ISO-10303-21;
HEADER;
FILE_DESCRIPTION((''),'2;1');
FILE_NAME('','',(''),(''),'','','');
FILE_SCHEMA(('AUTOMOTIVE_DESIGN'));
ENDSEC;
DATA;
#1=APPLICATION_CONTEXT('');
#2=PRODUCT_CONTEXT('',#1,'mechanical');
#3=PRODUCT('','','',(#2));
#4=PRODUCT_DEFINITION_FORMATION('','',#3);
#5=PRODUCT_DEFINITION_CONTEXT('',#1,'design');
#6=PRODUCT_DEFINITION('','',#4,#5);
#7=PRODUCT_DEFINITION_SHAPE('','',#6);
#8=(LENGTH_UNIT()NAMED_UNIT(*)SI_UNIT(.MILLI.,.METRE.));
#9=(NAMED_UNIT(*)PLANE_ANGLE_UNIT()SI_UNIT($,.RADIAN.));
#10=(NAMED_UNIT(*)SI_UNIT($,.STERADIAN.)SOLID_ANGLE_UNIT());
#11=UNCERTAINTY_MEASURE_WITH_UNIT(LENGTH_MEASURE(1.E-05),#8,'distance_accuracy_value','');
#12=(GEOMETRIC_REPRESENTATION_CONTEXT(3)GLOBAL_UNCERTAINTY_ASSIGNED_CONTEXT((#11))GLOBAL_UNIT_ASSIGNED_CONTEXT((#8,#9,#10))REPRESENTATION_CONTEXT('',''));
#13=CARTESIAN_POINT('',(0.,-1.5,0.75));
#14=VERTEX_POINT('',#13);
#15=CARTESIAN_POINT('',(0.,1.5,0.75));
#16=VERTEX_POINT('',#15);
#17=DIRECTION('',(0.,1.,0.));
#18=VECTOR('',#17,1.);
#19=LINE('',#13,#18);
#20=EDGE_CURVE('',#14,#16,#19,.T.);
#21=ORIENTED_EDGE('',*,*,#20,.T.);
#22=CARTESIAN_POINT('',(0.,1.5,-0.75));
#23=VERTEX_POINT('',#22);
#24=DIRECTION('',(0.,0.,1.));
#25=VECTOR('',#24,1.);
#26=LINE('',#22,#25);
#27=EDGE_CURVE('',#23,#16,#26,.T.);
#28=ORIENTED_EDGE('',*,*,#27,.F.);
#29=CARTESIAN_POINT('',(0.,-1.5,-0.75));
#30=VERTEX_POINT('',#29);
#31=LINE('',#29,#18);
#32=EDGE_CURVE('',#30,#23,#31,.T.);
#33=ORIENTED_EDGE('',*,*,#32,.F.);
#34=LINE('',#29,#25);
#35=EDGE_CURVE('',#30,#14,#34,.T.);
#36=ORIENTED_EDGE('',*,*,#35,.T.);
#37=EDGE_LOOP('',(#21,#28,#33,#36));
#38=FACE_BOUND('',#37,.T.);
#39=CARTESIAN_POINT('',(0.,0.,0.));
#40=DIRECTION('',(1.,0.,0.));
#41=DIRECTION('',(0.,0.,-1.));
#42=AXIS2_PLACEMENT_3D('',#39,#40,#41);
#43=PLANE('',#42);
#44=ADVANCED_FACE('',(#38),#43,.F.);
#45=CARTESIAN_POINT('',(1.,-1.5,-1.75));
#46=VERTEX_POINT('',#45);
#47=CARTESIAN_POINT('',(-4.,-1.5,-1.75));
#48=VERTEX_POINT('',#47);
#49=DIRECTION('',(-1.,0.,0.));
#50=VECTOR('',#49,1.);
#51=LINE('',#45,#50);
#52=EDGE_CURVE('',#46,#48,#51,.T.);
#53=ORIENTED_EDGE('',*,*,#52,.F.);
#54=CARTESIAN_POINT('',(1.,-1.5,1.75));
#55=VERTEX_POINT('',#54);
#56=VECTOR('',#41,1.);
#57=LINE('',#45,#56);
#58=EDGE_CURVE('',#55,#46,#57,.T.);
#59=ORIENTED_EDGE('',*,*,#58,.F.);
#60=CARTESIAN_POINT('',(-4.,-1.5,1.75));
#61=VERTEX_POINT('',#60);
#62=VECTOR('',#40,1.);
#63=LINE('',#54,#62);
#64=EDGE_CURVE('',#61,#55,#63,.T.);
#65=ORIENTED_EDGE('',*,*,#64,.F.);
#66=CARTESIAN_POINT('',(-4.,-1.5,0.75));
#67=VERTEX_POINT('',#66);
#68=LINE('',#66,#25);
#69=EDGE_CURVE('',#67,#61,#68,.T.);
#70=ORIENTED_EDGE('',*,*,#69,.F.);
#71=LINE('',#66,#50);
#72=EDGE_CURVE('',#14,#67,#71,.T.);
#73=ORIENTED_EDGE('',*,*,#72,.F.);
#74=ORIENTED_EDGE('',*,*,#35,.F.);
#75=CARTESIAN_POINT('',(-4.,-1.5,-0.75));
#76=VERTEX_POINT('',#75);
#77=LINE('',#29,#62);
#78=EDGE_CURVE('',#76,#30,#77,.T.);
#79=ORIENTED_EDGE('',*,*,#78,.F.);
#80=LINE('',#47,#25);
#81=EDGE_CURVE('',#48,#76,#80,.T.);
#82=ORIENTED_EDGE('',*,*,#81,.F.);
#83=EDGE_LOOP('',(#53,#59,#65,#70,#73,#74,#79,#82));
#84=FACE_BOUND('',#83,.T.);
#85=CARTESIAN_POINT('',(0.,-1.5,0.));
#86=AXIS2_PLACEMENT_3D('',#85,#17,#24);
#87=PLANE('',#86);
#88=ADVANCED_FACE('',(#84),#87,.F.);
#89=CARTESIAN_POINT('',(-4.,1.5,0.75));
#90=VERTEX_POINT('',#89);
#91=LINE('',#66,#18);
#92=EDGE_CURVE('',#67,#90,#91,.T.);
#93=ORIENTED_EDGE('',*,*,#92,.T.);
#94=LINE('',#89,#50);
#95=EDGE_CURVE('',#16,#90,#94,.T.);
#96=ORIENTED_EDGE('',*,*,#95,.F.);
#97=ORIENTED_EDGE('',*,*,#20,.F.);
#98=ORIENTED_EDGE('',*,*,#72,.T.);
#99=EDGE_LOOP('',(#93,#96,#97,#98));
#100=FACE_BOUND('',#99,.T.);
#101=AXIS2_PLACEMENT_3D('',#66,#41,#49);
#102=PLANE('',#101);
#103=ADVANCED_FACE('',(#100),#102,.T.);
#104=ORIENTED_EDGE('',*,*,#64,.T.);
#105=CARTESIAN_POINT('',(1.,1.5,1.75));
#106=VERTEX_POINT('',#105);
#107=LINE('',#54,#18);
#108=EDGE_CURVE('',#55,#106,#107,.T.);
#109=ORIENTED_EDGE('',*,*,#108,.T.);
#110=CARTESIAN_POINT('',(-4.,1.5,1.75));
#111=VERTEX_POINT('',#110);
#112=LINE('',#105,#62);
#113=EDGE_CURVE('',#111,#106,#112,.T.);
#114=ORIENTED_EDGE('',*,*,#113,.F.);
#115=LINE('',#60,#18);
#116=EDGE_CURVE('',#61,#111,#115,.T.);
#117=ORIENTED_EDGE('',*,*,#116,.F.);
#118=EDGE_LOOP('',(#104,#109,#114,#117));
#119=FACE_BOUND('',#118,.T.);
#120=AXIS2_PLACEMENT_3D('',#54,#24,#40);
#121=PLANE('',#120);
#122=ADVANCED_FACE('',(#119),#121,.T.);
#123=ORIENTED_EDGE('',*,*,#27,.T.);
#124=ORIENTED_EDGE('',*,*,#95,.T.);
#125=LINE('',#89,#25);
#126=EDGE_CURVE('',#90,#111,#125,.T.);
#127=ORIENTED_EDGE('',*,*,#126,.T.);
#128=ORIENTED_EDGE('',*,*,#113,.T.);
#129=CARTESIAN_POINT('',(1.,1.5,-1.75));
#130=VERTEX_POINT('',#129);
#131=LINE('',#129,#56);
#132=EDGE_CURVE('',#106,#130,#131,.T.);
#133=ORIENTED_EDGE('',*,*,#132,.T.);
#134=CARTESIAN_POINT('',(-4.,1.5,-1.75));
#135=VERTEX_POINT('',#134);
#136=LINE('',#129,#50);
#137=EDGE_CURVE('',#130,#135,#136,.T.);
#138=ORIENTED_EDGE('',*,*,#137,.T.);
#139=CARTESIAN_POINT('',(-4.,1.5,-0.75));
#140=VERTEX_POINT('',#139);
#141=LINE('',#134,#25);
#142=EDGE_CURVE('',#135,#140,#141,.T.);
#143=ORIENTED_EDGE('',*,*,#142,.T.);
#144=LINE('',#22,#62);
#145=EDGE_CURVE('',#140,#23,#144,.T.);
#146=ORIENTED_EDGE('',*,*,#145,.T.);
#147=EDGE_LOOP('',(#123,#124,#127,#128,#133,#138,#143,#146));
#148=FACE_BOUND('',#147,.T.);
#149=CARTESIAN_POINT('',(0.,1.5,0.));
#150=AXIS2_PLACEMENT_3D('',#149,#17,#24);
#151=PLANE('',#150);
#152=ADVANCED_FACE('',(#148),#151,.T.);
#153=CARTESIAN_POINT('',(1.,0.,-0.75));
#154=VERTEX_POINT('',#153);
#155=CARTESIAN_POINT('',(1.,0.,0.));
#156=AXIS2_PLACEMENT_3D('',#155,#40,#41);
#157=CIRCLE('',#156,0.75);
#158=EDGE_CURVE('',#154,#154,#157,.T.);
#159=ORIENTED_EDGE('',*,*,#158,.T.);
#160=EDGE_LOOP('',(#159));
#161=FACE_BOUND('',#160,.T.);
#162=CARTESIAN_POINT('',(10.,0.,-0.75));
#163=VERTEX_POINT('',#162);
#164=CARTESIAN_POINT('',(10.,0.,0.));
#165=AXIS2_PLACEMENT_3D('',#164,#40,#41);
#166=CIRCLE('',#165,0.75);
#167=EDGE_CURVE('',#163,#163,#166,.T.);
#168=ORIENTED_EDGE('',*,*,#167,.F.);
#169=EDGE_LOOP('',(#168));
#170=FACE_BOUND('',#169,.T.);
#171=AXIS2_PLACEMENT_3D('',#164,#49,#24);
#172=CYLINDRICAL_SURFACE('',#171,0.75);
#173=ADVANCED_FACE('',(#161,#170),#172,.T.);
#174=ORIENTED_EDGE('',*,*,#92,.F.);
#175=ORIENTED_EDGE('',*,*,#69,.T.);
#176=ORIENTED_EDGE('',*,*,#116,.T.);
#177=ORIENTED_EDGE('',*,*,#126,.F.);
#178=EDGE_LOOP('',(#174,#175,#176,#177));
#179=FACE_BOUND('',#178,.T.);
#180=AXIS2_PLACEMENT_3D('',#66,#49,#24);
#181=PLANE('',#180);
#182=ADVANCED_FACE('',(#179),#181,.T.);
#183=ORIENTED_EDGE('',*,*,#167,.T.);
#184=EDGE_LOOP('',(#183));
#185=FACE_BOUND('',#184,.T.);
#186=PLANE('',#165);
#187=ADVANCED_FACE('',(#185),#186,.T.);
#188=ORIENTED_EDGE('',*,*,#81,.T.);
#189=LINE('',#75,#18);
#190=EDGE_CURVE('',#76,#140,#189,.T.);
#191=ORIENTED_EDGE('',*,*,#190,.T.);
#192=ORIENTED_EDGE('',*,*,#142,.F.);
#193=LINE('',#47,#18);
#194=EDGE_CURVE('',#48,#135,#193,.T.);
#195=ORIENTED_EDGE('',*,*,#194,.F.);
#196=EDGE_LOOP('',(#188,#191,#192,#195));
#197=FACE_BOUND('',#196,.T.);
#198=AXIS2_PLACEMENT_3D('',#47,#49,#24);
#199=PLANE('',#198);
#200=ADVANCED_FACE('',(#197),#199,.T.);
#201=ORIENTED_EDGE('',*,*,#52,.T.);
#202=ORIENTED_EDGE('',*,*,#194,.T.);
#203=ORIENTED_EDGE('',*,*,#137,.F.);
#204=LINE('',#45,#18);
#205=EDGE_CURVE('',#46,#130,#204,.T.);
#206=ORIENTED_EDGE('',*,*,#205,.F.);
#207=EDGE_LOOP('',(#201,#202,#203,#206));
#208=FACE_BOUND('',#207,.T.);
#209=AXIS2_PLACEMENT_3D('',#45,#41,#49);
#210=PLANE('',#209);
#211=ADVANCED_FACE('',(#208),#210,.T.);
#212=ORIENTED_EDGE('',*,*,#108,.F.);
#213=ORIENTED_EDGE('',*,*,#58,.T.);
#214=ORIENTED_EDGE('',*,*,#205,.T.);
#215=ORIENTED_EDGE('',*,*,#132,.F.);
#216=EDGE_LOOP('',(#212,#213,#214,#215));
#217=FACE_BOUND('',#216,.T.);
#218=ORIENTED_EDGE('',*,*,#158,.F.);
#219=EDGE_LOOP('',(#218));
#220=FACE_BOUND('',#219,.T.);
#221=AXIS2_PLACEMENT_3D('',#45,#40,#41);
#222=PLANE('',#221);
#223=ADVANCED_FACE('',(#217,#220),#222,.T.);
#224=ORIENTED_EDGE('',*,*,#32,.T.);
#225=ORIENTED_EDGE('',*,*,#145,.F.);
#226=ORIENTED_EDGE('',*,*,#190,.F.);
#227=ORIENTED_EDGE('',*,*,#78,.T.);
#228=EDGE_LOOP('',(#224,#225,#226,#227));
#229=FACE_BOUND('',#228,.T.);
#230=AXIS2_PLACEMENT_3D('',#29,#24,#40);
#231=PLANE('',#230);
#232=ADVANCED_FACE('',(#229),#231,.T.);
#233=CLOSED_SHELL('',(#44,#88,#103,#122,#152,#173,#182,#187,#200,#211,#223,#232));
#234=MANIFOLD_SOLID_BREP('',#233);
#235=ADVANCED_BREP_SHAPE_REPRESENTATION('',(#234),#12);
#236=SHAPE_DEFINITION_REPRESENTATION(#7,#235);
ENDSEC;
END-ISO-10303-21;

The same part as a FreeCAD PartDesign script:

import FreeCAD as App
import Part
import Sketcher
Q = App.Units.Quantity


def add_polygon(sketch, points):
    """Adds a closed chain of lines whose ends are joined by coincident constraints."""
    first, n = sketch.GeometryCount, len(points)
    for a, b in zip(points, points[1:] + points[:1]):
        sketch.addGeometry(Part.LineSegment(App.Vector(*a, 0), App.Vector(*b, 0)), False)
    for i in range(n):
        sketch.addConstraint(Sketcher.Constraint("Coincident", first + i, 2, first + (i + 1) % n, 1))

doc = App.newDocument("Part")
body = doc.addObject("PartDesign::Body", "Body")

sketch1 = doc.addObject("Sketcher::SketchObject", "Sketch")
body.addObject(sketch1)
sketch1.AttachmentSupport = (doc.YZ_Plane, [""])
sketch1.MapMode = "FlatFace"
sketch1.addGeometry(Part.Circle(App.Vector(0, 0, 0), App.Vector(0, 0, 1), 0.8), False)
sketch1.addConstraint(Sketcher.Constraint("Coincident", 0, 3, -1, 1))
sketch1.addConstraint(Sketcher.Constraint("Diameter", 0, Q("1.5 mm")))
pad1 = doc.addObject("PartDesign::Pad", "Pad")
body.addObject(pad1)
pad1.Profile = sketch1
pad1.Length = 10

sketch2 = doc.addObject("Sketcher::SketchObject", "Sketch001")
body.addObject(sketch2)
sketch2.AttachmentSupport = (doc.XZ_Plane, [""])
sketch2.MapMode = "FlatFace"
add_polygon(sketch2, [(1, 1.8), (1, -1.8), (-4, -1.8), (-4, -0.8), (0, -0.8), (0, 0.8), (-4, 0.8), (-4, 1.8)])
sketch2.addConstraint(Sketcher.Constraint("Vertical", 0))
sketch2.addConstraint(Sketcher.Constraint("Horizontal", 1))
sketch2.addConstraint(Sketcher.Constraint("Vertical", 2))
sketch2.addConstraint(Sketcher.Constraint("Horizontal", 3))
sketch2.addConstraint(Sketcher.Constraint("Vertical", 4))
sketch2.addConstraint(Sketcher.Constraint("Horizontal", 5))
sketch2.addConstraint(Sketcher.Constraint("Vertical", 6))
sketch2.addConstraint(Sketcher.Constraint("Horizontal", 7))
sketch2.addConstraint(Sketcher.Constraint("Symmetric", 3, 2, 4, 2, -1, 1))
sketch2.addConstraint(Sketcher.Constraint("Symmetric", 1, 2, 6, 2, -1))
sketch2.addConstraint(Sketcher.Constraint("DistanceX", 1, 2, 1, 1, Q("5 mm")))
sketch2.addConstraint(Sketcher.Constraint("DistanceX", 3, 1, 3, 2, Q("4 mm")))
sketch2.addConstraint(Sketcher.Constraint("DistanceY", 2, 1, 2, 2, Q("1 mm")))
sketch2.addConstraint(Sketcher.Constraint("DistanceY", 0, 2, 0, 1, Q("3.5 mm")))
pad2 = doc.addObject("PartDesign::Pad", "Pad001")
body.addObject(pad2)
pad2.Profile = sketch2
pad2.Type = "TwoLengths"
pad2.Length = 1.5
pad2.Length2 = 1.5
pad2.Reversed = True

doc.recompute()
